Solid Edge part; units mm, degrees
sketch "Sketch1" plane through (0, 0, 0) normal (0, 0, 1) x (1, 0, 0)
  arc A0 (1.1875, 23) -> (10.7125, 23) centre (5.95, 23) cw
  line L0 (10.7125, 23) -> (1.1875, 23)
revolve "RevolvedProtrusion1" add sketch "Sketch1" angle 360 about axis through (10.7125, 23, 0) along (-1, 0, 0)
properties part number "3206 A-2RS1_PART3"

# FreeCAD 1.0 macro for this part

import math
import FreeCAD as App
import Part
import Sketcher

V = App.Vector
Q = App.Units.Quantity

doc = App.newDocument("Part")
body = doc.addObject("PartDesign::Body", "Body")

# Sketch on XY plane
sketch1 = doc.addObject("Sketcher::SketchObject", "Sketch")
body.addObject(sketch1)
sketch1.AttachmentSupport = (doc.XY_Plane, [""])
sketch1.MapMode = "FlatFace"
sketch1.addGeometry([
    Part.ArcOfCircle(Part.Circle(V(5.95, 23, 0), V(0, 0, 1), 4.7625), math.radians(0), math.radians(180)),
    Part.LineSegment(V(1.1875, 23, 0), V(10.7125, 23, 0)),
], False)
sketch1.addGeometry(Part.LineSegment(V(10.7125, 23, 0), V(1.1875, 23, 0)), True)  # axis
sketch1.addConstraint([
    Sketcher.Constraint("Coincident", 0, 1, 1, 2),
    Sketcher.Constraint("Coincident", 1, 1, 0, 2),
    Sketcher.Constraint("Horizontal", 1),
    Sketcher.Constraint("Horizontal", 2),
    Sketcher.Constraint("Coincident", 2, 1, 0, 1),
    Sketcher.Constraint("Equal", 1, 2),
    Sketcher.Constraint("Radius", 0, Q("0.1875 in")),
    Sketcher.Constraint("DistanceY", -1, 1, 0, 3, Q("0.9055 in")),
    Sketcher.Constraint("DistanceY", -1, 1, 0, 1, Q("0.9055 in")),
    Sketcher.Constraint("DistanceX", -1, 1, 0, 3, 5.95),
])
revolution = doc.addObject("PartDesign::Revolution", "Revolution")
body.addObject(revolution)
revolution.Profile = sketch1
revolution.ReferenceAxis = (sketch1, ["Axis0"])
revolution.Angle = 360

doc.recompute()
